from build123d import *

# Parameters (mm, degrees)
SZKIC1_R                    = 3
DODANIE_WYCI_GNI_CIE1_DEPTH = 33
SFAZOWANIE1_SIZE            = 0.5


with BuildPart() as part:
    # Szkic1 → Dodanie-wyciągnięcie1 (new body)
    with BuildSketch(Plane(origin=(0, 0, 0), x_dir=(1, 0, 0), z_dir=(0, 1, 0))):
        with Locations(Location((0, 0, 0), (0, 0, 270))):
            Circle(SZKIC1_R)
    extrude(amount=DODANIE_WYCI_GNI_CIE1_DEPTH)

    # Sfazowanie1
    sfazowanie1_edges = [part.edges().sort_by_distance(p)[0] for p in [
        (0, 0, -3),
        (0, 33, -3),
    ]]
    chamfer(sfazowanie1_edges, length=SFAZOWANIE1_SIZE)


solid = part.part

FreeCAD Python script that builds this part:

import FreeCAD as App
import Part
import Sketcher
from FreeCAD import Vector


def edges_at(feature, points):
    """Names of the edges that pass closest to the given points."""
    edges = feature.Shape.Edges
    near = lambda p: min(range(len(edges)), key=lambda i: edges[i].distToShape(Part.Vertex(*p))[0])
    return sorted({f"Edge{near(p) + 1}" for p in points})

doc = App.newDocument("Part")
body = doc.addObject("PartDesign::Body", "Body")

# Sketch on XZ plane
sketch1 = body.newObject("Sketcher::SketchObject", "Sketch")
sketch1.AttachmentSupport = (doc.getObject("XZ_Plane"), [""])
sketch1.MapMode = "FlatFace"
sketch1.addGeometry(Part.Circle(Vector(0, 0, 0), Vector(0, 0, 1), 3), False)
sketch1.addConstraint(Sketcher.Constraint("Coincident", 0, 3, -1, 1))
sketch1.addConstraint(Sketcher.Constraint("Diameter", 0, 6.0))
pad1 = body.newObject("PartDesign::Pad", "Pad")
pad1.Profile = sketch1
pad1.Length = 33
pad1.Reversed = True
doc.recompute()

chamfer = body.newObject("PartDesign::Chamfer", "Chamfer")
chamfer.Base = (pad1, edges_at(pad1, [(0, 0, -3), (0, 33, -3)]))
chamfer.Size = 0.5

doc.recompute()
